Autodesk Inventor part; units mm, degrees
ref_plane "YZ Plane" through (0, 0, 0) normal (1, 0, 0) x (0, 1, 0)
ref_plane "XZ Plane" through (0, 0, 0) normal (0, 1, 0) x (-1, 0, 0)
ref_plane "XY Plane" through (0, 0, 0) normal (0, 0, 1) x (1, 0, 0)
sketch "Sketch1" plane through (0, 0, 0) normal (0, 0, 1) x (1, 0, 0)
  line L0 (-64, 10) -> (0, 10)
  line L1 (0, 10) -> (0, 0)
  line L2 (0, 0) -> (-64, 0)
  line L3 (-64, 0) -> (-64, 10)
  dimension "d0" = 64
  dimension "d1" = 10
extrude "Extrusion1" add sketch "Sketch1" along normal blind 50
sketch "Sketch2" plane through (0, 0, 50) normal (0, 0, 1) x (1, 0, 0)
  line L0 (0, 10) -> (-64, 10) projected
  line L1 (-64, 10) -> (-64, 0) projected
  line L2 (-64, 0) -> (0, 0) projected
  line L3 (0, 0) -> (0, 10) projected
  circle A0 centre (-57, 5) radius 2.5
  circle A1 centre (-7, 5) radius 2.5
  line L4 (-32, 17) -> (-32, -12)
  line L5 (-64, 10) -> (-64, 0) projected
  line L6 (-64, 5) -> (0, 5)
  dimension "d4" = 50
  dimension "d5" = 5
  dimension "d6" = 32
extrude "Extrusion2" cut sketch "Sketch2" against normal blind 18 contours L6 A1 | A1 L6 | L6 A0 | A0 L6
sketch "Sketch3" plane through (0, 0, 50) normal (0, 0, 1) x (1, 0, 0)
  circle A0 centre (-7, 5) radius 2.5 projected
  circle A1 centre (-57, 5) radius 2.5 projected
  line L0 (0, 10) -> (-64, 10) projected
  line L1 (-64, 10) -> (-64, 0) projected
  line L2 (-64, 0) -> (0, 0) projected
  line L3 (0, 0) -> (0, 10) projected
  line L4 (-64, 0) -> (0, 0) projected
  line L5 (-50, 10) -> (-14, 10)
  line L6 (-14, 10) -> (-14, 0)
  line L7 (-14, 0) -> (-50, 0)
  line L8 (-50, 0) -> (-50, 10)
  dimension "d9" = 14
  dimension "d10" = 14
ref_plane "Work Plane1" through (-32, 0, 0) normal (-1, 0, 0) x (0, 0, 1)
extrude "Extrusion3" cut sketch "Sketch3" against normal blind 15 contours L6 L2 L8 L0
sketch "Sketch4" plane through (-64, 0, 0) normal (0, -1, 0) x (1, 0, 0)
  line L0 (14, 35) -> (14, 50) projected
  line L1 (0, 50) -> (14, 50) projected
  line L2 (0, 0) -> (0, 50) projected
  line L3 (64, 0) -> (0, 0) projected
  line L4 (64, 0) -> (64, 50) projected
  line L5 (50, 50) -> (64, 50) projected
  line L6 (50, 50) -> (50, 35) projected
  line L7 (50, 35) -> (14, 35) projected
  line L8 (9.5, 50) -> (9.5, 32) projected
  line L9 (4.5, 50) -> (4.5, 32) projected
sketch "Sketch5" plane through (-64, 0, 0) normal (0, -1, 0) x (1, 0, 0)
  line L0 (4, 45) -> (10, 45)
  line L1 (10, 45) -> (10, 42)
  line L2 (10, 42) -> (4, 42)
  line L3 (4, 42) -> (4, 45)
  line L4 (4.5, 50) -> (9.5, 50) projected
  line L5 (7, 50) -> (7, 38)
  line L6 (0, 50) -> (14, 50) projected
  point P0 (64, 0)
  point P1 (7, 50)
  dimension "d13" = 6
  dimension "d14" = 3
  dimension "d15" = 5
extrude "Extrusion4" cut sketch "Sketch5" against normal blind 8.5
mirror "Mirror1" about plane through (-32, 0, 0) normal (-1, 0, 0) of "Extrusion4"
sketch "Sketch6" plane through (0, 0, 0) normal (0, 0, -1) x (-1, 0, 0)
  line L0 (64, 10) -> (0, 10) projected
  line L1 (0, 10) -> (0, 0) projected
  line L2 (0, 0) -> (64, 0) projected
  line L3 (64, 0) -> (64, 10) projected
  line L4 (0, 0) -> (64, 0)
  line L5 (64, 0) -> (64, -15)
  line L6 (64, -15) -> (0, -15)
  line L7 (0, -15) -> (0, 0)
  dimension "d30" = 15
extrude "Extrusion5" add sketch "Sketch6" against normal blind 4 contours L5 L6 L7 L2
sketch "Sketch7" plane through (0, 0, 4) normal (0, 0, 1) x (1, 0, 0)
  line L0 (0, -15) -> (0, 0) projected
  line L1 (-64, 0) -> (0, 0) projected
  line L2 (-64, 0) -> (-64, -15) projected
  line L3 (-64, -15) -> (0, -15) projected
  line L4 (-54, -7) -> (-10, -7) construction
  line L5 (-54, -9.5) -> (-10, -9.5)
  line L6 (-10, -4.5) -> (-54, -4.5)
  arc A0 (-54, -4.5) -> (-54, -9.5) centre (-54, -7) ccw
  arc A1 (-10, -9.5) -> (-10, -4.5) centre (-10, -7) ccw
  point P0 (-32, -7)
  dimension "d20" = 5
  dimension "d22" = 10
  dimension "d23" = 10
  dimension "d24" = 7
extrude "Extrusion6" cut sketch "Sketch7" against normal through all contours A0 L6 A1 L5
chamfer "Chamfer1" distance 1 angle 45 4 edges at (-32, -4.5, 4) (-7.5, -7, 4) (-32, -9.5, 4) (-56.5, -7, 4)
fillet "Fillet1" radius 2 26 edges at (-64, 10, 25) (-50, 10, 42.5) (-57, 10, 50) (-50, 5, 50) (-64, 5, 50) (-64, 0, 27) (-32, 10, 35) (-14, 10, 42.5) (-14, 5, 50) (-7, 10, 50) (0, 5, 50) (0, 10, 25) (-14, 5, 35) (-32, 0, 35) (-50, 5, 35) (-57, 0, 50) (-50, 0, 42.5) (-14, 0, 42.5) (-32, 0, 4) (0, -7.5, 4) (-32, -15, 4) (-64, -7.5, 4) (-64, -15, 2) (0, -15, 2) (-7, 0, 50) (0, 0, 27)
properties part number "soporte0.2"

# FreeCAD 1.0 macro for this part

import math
import FreeCAD as App
import Part
import Sketcher
Q = App.Units.Quantity


def edges_at(feature, points):
    """Names of the edges that pass closest to the given points."""
    edges = feature.Shape.Edges
    near = lambda p: min(range(len(edges)), key=lambda i: edges[i].distToShape(Part.Vertex(*p))[0])
    return sorted({f"Edge{near(p) + 1}" for p in points})

doc = App.newDocument("Part")
params = doc.addObject("Spreadsheet::Sheet", "Params")
for row, (alias, value) in enumerate([
    ("sketch1_width", "64 mm"),
    ("sketch1_height", "10 mm"),
    ("pad1_length", "50 mm"),
    ("sketch2_diameter", "5 mm"),
    ("pocket1_length", "18 mm"),
    ("sketch3_width", "36 mm"),
    ("sketch3_height", "10 mm"),
    ("pocket2_length", "15 mm"),
    ("sketch4_width", "6 mm"),
    ("sketch4_height", "3 mm"),
    ("pocket3_length", "8.5 mm"),
    ("sketch5_height", "15 mm"),
    ("sketch5_width", "64 mm"),
    ("pad2_length", "4 mm"),
    ("sketch6_radius", "2.5 mm"),
    ("sketch6_width", "44 mm"),
    ("chamfer_size", "1 mm"),
    ("fillet_radius", "2 mm"),
], start=1):
    params.set(f"A{row}", alias)
    params.set(f"B{row}", "=" + value)
    params.setAlias(f"B{row}", alias)

body = doc.addObject("PartDesign::Body", "Body")

sketch1 = body.newObject("Sketcher::SketchObject", "Sketch")
sketch1.AttachmentSupport = (doc.getObject("XY_Plane"), [""])
sketch1.MapMode = "FlatFace"
sketch1.addGeometry([
    Part.LineSegment(App.Vector(0, 10, 0), App.Vector(-64, 10, 0)),
    Part.LineSegment(App.Vector(-64, 10, 0), App.Vector(-64, 0, 0)),
    Part.LineSegment(App.Vector(-64, 0, 0), App.Vector(0, 0, 0)),
    Part.LineSegment(App.Vector(0, 0, 0), App.Vector(0, 10, 0)),
], False)
sketch1.addConstraint([
    Sketcher.Constraint("Coincident", 0, 2, 1, 1),
    Sketcher.Constraint("Coincident", 1, 2, 2, 1),
    Sketcher.Constraint("Coincident", 2, 2, 3, 1),
    Sketcher.Constraint("Coincident", 3, 2, 0, 1),
    Sketcher.Constraint("Horizontal", 0),
    Sketcher.Constraint("Vertical", 1),
    Sketcher.Constraint("Horizontal", 2),
    Sketcher.Constraint("Vertical", 3),
    Sketcher.Constraint("Coincident", 2, 2, -1, 1),
    Sketcher.Constraint("DistanceX", 0, 2, 0, 1, Q("64 mm")),
    Sketcher.Constraint("DistanceY", 1, 2, 1, 1, Q("10 mm")),
])
sketch1.setExpression("Constraints[9]", "Params.sketch1_width")
sketch1.setExpression("Constraints[10]", "Params.sketch1_height")
pad1 = body.newObject("PartDesign::Pad", "Pad")
pad1.Profile = sketch1
pad1.setExpression("Length", "Params.pad1_length")

sketch2 = body.newObject("Sketcher::SketchObject", "Sketch001")
sketch2.AttachmentSupport = (doc.getObject("XY_Plane"), [""])
sketch2.MapMode = "FlatFace"
sketch2.AttachmentOffset = App.Placement(App.Vector(0, 0, 50), App.Rotation())
sketch2.addGeometry([
    Part.Circle(App.Vector(-7, 5, 0), App.Vector(0, 0, 1), 2.5),
    Part.Circle(App.Vector(-57, 5, 0), App.Vector(0, 0, 1), 2.5),
], False)
sketch2.addConstraint([
    Sketcher.Constraint("Equal", 0, 1),
    Sketcher.Constraint("Horizontal", 0, 3, 1, 3),
    Sketcher.Constraint("Diameter", 0, Q("5 mm")),
    Sketcher.Constraint("DistanceY", -1, 1, 0, 3, Q("5 mm")),
    Sketcher.Constraint("DistanceX", 1, 3, 0, 3, Q("50 mm")),
    Sketcher.Constraint("DistanceX", 0, 3, -1, 1, Q("7 mm")),
])
sketch2.setExpression("Constraints[2]", "Params.sketch2_diameter")
pocket1 = body.newObject("PartDesign::Pocket", "Pocket")
pocket1.Profile = sketch2
pocket1.setExpression("Length", "Params.pocket1_length")

sketch3 = body.newObject("Sketcher::SketchObject", "Sketch002")
sketch3.AttachmentSupport = (doc.getObject("XY_Plane"), [""])
sketch3.MapMode = "FlatFace"
sketch3.AttachmentOffset = App.Placement(App.Vector(0, 0, 50), App.Rotation())
sketch3.addGeometry([
    Part.LineSegment(App.Vector(-14, 0, 0), App.Vector(-14, 10, 0)),
    Part.LineSegment(App.Vector(-14, 10, 0), App.Vector(-50, 10, 0)),
    Part.LineSegment(App.Vector(-50, 10, 0), App.Vector(-50, 0, 0)),
    Part.LineSegment(App.Vector(-50, 0, 0), App.Vector(-14, 0, 0)),
], False)
sketch3.addConstraint([
    Sketcher.Constraint("Coincident", 0, 2, 1, 1),
    Sketcher.Constraint("Coincident", 1, 2, 2, 1),
    Sketcher.Constraint("Coincident", 2, 2, 3, 1),
    Sketcher.Constraint("Coincident", 3, 2, 0, 1),
    Sketcher.Constraint("Vertical", 0),
    Sketcher.Constraint("Horizontal", 1),
    Sketcher.Constraint("Vertical", 2),
    Sketcher.Constraint("Horizontal", 3),
    Sketcher.Constraint("PointOnObject", 2, 2, -1),
    Sketcher.Constraint("DistanceX", 0, 2, -1, 1, Q("14 mm")),
    Sketcher.Constraint("DistanceX", 1, 2, 1, 1, Q("36 mm")),
    Sketcher.Constraint("DistanceY", 0, 1, 0, 2, Q("10 mm")),
])
sketch3.setExpression("Constraints[10]", "Params.sketch3_width")
sketch3.setExpression("Constraints[11]", "Params.sketch3_height")
pocket2 = body.newObject("PartDesign::Pocket", "Pocket001")
pocket2.Profile = sketch3
pocket2.setExpression("Length", "Params.pocket2_length")

sketch4 = body.newObject("Sketcher::SketchObject", "Sketch003")
sketch4.AttachmentSupport = (doc.getObject("XZ_Plane"), [""])
sketch4.MapMode = "FlatFace"
sketch4.addGeometry([
    Part.LineSegment(App.Vector(-60, 45, 0), App.Vector(-60, 42, 0)),
    Part.LineSegment(App.Vector(-60, 42, 0), App.Vector(-54, 42, 0)),
    Part.LineSegment(App.Vector(-54, 42, 0), App.Vector(-54, 45, 0)),
    Part.LineSegment(App.Vector(-54, 45, 0), App.Vector(-60, 45, 0)),
], False)
sketch4.addConstraint([
    Sketcher.Constraint("Coincident", 0, 2, 1, 1),
    Sketcher.Constraint("Coincident", 1, 2, 2, 1),
    Sketcher.Constraint("Coincident", 2, 2, 3, 1),
    Sketcher.Constraint("Coincident", 3, 2, 0, 1),
    Sketcher.Constraint("Vertical", 0),
    Sketcher.Constraint("Horizontal", 1),
    Sketcher.Constraint("Vertical", 2),
    Sketcher.Constraint("Horizontal", 3),
    Sketcher.Constraint("DistanceX", 1, 1, 1, 2, Q("6 mm")),
    Sketcher.Constraint("DistanceY", 0, 2, 0, 1, Q("3 mm")),
    Sketcher.Constraint("DistanceX", 0, 2, -1, 1, Q("60 mm")),
    Sketcher.Constraint("DistanceY", -1, 1, 0, 2, Q("42 mm")),
])
sketch4.setExpression("Constraints[8]", "Params.sketch4_width")
sketch4.setExpression("Constraints[9]", "Params.sketch4_height")
pocket3 = body.newObject("PartDesign::Pocket", "Pocket002")
pocket3.Profile = sketch4
pocket3.setExpression("Length", "Params.pocket3_length")
doc.recompute()

datumplane = body.newObject("PartDesign::Plane", "DatumPlane")
datumplane.AttachmentSupport = (doc.getObject("YZ_Plane"), [""])
datumplane.MapMode = "FlatFace"
datumplane.AttachmentOffset = App.Placement(App.Vector(0, 0, -32), App.Rotation())
mirrored = body.newObject("PartDesign::Mirrored", "Mirrored")
mirrored.Originals = [pocket3]
mirrored.MirrorPlane = (datumplane, [""])
body.Tip = mirrored

sketch5 = body.newObject("Sketcher::SketchObject", "Sketch004")
sketch5.AttachmentSupport = (doc.getObject("XY_Plane"), [""])
sketch5.MapMode = "FlatFace"
sketch5.addGeometry([
    Part.LineSegment(App.Vector(-64, -15, 0), App.Vector(-64, 0, 0)),
    Part.LineSegment(App.Vector(-64, 0, 0), App.Vector(0, 0, 0)),
    Part.LineSegment(App.Vector(0, 0, 0), App.Vector(0, -15, 0)),
    Part.LineSegment(App.Vector(0, -15, 0), App.Vector(-64, -15, 0)),
], False)
sketch5.addConstraint([
    Sketcher.Constraint("Coincident", 0, 2, 1, 1),
    Sketcher.Constraint("Coincident", 1, 2, 2, 1),
    Sketcher.Constraint("Coincident", 2, 2, 3, 1),
    Sketcher.Constraint("Coincident", 3, 2, 0, 1),
    Sketcher.Constraint("Vertical", 0),
    Sketcher.Constraint("Horizontal", 1),
    Sketcher.Constraint("Vertical", 2),
    Sketcher.Constraint("Horizontal", 3),
    Sketcher.Constraint("Coincident", 1, 2, -1, 1),
    Sketcher.Constraint("DistanceY", 0, 1, 0, 2, Q("15 mm")),
    Sketcher.Constraint("DistanceX", 1, 1, 1, 2, Q("64 mm")),
])
sketch5.setExpression("Constraints[9]", "Params.sketch5_height")
sketch5.setExpression("Constraints[10]", "Params.sketch5_width")
pad2 = body.newObject("PartDesign::Pad", "Pad001")
pad2.Profile = sketch5
pad2.setExpression("Length", "Params.pad2_length")

sketch6 = body.newObject("Sketcher::SketchObject", "Sketch005")
sketch6.AttachmentSupport = (doc.getObject("XY_Plane"), [""])
sketch6.MapMode = "FlatFace"
sketch6.AttachmentOffset = App.Placement(App.Vector(0, 0, 4), App.Rotation())
sketch6.addGeometry([
    Part.ArcOfCircle(Part.Circle(App.Vector(-54, -7, 0), App.Vector(0, 0, 1), 2.5), math.radians(90), math.radians(270)),
    Part.LineSegment(App.Vector(-54, -9.5, 0), App.Vector(-10, -9.5, 0)),
    Part.ArcOfCircle(Part.Circle(App.Vector(-10, -7, 0), App.Vector(0, 0, 1), 2.5), math.radians(-90), math.radians(90)),
    Part.LineSegment(App.Vector(-10, -4.5, 0), App.Vector(-54, -4.5, 0)),
], False)
sketch6.addConstraint([
    Sketcher.Constraint("Tangent", 0, 2, 1, 1),
    Sketcher.Constraint("Tangent", 1, 2, 2, 1),
    Sketcher.Constraint("Tangent", 2, 2, 3, 1),
    Sketcher.Constraint("Tangent", 3, 2, 0, 1),
    Sketcher.Constraint("Horizontal", 1),
    Sketcher.Constraint("Horizontal", 3),
    Sketcher.Constraint("Radius", 0, Q("2.5 mm")),
    Sketcher.Constraint("DistanceY", 0, 3, -1, 1, Q("7 mm")),
    Sketcher.Constraint("DistanceX", 2, 3, -1, 1, Q("10 mm")),
    Sketcher.Constraint("DistanceX", 1, 1, 1, 2, Q("44 mm")),
])
sketch6.setExpression("Constraints[6]", "Params.sketch6_radius")
sketch6.setExpression("Constraints[9]", "Params.sketch6_width")
pocket4 = body.newObject("PartDesign::Pocket", "Pocket003")
pocket4.Profile = sketch6
pocket4.Type = "ThroughAll"
doc.recompute()

chamfer = body.newObject("PartDesign::Chamfer", "Chamfer")
chamfer.Base = (pocket4, edges_at(pocket4, [
    (-32, -4.5, 4),
    (-7.5, -7, 4),
    (-32, -9.5, 4),
    (-56.5, -7, 4),
]))
chamfer.setExpression("Size", "Params.chamfer_size")
doc.recompute()

fillet = body.newObject("PartDesign::Fillet", "Fillet")
fillet.Base = (chamfer, edges_at(chamfer, [
    (-64, 10, 25),
    (-50, 10, 42.5),
    (-57, 10, 50),
    (-50, 5, 50),
    (-64, 5, 50),
    (-64, 0, 27),
    (-32, 10, 35),
    (-14, 10, 42.5),
    (-14, 5, 50),
    (-7, 10, 50),
    (0, 5, 50),
    (0, 10, 25),
    (-14, 5, 35),
    (-32, 0, 35),
    (-50, 5, 35),
    (-57, 0, 50),
    (-50, 0, 42.5),
    (-14, 0, 42.5),
    (-32, 0, 4),
    (0, -7.5, 4),
    (-32, -15, 4),
    (-64, -7.5, 4),
    (-64, -15, 2),
    (0, -15, 2),
    (-7, 0, 50),
    (0, 0, 27),
]))
fillet.setExpression("Radius", "Params.fillet_radius")

doc.recompute()
